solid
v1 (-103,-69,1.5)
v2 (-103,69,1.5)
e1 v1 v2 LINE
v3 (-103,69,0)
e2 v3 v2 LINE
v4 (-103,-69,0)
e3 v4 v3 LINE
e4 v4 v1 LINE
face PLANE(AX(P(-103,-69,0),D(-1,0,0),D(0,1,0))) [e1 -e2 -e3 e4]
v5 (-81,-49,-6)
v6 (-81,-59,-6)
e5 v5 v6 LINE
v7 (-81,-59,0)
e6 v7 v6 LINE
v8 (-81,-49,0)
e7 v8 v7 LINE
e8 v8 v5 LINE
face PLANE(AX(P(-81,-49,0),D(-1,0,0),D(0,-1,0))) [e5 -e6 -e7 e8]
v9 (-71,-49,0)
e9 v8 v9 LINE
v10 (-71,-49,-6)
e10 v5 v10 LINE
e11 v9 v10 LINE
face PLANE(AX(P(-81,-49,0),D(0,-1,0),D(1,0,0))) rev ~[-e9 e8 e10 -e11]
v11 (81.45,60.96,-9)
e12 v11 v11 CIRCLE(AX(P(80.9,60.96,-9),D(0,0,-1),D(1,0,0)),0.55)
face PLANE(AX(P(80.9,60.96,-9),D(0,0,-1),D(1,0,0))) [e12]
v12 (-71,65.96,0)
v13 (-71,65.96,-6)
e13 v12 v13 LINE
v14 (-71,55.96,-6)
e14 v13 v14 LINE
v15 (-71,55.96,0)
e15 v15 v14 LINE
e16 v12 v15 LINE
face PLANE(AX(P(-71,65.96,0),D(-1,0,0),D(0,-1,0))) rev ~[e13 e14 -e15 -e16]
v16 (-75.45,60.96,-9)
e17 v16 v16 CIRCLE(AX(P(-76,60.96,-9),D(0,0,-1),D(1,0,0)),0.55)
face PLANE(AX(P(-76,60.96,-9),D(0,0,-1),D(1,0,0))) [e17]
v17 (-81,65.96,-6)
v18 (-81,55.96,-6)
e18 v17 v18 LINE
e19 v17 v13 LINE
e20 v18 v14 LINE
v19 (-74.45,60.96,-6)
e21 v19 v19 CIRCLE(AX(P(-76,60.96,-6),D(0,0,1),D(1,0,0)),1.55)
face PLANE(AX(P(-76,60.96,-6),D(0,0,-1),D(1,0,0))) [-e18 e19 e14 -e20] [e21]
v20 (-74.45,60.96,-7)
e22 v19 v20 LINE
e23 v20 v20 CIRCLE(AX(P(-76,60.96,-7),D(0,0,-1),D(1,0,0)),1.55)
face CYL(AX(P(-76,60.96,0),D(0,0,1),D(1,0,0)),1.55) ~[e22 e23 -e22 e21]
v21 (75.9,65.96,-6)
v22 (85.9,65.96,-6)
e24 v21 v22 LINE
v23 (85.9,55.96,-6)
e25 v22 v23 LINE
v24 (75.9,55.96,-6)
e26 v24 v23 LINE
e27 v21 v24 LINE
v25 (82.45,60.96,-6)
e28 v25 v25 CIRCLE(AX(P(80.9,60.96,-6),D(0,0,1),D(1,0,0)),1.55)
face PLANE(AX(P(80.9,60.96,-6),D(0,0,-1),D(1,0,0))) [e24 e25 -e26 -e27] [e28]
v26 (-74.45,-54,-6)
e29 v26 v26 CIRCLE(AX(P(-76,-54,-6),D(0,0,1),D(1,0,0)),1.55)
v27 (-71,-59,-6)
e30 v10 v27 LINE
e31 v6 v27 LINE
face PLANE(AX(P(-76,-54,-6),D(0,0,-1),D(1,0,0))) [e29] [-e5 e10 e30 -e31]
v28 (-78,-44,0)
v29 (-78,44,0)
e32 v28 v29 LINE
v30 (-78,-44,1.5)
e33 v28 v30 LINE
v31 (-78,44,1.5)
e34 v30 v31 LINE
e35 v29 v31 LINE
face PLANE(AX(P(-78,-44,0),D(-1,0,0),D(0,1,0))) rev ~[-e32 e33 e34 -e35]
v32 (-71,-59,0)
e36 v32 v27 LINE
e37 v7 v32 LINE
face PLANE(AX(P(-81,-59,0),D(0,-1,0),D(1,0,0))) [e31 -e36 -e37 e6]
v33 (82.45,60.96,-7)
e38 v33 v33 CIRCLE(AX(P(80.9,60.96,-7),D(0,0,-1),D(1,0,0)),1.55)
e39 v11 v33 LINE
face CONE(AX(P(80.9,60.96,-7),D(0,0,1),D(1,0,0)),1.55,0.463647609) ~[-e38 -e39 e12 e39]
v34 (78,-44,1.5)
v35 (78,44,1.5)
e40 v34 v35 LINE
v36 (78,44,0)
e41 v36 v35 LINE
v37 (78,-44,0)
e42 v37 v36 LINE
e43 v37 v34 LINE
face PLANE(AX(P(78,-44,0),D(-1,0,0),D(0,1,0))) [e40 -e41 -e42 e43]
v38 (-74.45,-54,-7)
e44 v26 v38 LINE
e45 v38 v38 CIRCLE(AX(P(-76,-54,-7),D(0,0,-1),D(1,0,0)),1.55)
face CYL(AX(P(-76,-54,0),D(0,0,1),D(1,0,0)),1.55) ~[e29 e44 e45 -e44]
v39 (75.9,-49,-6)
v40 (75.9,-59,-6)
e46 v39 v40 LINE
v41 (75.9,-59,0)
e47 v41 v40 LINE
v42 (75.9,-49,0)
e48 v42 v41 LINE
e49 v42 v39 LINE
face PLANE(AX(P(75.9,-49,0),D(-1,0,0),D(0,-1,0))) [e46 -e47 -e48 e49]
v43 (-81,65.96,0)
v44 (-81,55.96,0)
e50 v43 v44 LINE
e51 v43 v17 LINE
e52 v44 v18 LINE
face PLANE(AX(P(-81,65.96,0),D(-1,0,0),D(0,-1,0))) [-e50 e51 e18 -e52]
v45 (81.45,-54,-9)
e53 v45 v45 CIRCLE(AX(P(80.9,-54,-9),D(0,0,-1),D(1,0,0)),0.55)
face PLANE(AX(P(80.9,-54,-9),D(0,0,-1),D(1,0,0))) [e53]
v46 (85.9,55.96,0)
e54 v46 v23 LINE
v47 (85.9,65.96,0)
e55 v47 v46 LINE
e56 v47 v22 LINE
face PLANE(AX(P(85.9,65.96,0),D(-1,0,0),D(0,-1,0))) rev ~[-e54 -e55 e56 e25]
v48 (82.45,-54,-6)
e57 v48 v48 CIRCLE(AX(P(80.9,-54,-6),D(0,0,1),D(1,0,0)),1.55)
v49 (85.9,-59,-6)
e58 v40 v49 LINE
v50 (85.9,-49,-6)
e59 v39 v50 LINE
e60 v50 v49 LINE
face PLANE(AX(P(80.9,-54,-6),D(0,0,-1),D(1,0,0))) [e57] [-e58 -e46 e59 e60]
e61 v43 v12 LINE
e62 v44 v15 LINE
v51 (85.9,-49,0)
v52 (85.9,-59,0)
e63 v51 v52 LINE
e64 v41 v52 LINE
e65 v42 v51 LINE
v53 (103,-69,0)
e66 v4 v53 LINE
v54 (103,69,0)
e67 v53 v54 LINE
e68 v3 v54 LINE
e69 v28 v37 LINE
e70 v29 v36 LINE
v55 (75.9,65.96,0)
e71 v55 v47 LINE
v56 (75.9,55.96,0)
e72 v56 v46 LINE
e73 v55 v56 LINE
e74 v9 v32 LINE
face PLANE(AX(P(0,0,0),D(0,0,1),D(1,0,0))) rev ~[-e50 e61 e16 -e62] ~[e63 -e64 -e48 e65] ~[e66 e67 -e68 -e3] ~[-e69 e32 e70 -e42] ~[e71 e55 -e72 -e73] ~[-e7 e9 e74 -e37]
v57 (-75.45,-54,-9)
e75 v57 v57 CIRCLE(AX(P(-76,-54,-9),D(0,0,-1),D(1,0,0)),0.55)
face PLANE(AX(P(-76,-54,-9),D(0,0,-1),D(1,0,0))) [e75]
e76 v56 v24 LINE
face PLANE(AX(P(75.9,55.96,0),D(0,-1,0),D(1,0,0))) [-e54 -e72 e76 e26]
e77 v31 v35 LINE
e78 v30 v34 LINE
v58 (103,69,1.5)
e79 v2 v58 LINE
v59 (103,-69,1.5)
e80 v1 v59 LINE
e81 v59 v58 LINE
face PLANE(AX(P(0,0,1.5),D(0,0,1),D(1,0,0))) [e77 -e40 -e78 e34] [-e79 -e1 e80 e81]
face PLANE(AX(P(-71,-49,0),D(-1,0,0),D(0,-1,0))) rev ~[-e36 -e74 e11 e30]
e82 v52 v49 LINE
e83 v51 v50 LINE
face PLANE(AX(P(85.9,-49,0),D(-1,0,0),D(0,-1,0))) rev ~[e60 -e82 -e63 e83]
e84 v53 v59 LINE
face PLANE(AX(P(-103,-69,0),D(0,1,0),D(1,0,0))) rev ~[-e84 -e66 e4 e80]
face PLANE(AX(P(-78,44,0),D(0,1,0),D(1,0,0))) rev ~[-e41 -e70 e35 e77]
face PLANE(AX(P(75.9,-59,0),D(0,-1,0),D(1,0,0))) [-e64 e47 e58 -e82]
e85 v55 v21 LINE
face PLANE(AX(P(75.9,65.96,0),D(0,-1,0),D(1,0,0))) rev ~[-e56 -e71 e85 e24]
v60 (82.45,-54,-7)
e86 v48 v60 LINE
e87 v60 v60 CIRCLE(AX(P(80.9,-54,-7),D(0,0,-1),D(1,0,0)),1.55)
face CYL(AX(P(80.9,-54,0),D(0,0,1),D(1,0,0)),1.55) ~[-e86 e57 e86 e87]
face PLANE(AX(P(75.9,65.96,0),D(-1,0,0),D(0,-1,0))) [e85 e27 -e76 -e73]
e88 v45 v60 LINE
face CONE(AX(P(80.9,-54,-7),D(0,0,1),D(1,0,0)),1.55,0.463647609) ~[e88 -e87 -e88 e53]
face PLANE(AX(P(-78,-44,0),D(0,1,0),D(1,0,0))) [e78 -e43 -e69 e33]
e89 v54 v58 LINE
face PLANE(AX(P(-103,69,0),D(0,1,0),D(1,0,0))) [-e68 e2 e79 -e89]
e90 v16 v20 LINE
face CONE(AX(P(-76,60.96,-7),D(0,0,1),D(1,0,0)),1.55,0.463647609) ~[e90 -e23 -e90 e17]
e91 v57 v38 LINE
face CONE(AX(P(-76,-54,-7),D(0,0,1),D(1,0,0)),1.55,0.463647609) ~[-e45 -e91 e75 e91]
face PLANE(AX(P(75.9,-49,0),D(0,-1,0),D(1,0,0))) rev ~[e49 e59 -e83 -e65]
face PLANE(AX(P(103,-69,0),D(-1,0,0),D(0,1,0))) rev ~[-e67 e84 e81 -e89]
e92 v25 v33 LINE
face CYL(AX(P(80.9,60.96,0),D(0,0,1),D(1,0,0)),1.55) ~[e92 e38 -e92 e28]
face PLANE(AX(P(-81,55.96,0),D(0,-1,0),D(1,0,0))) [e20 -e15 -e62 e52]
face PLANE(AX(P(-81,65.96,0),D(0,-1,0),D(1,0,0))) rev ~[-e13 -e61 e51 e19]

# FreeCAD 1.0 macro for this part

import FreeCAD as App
import Part
import Sketcher


def edges_at(feature, points):
    """Names of the edges that pass closest to the given points."""
    edges = feature.Shape.Edges
    near = lambda p: min(range(len(edges)), key=lambda i: edges[i].distToShape(Part.Vertex(*p))[0])
    return sorted({f"Edge{near(p) + 1}" for p in points})


def add_polygon(sketch, points):
    """Adds a closed chain of lines whose ends are joined by coincident constraints."""
    first, n = sketch.GeometryCount, len(points)
    for a, b in zip(points, points[1:] + points[:1]):
        sketch.addGeometry(Part.LineSegment(App.Vector(*a, 0), App.Vector(*b, 0)), False)
    for i in range(n):
        sketch.addConstraint(Sketcher.Constraint("Coincident", first + i, 2, first + (i + 1) % n, 1))

doc = App.newDocument("Part")
body = doc.addObject("PartDesign::Body", "Body")

sketch1 = body.newObject("Sketcher::SketchObject", "Sketch")
sketch1.AttachmentSupport = (doc.getObject("XY_Plane"), [""])
sketch1.MapMode = "FlatFace"
add_polygon(sketch1, [(-103, 69), (-103, -69), (103, -69), (103, 69)])
add_polygon(sketch1, [(78, -44), (-78, -44), (-78, 44), (78, 44)])
sketch1.addConstraint([
    Sketcher.Constraint("Vertical", 0),
    Sketcher.Constraint("Horizontal", 1),
    Sketcher.Constraint("Vertical", 2),
    Sketcher.Constraint("Horizontal", 3),
    Sketcher.Constraint("Horizontal", 4),
    Sketcher.Constraint("Vertical", 5),
    Sketcher.Constraint("Horizontal", 6),
    Sketcher.Constraint("Vertical", 7),
    Sketcher.Constraint("Symmetric", 0, 2, 2, 2, -1, 1),
    Sketcher.Constraint("Symmetric", 4, 2, 6, 2, -1, 1),
    Sketcher.Constraint("DistanceX", 1, 1, 1, 2, 206.0),
    Sketcher.Constraint("DistanceX", 4, 2, 4, 1, 156.0),
    Sketcher.Constraint("DistanceY", 0, 2, 0, 1, 138.0),
    Sketcher.Constraint("DistanceY", 5, 1, 5, 2, 88.0),
])
pad1 = body.newObject("PartDesign::Pad", "Pad")
pad1.Profile = sketch1
pad1.Length = 1.5

sketch2 = body.newObject("Sketcher::SketchObject", "Sketch001")
sketch2.AttachmentSupport = (doc.getObject("XY_Plane"), [""])
sketch2.MapMode = "FlatFace"
add_polygon(sketch2, [(-81, -59), (-81, -49), (-71, -49), (-71, -59)])
add_polygon(sketch2, [(76, -59), (76, -49), (86, -49), (86, -59)])
add_polygon(sketch2, [(76, 56), (76, 66), (86, 66), (86, 56)])
add_polygon(sketch2, [(-81, 56), (-81, 66), (-71, 66), (-71, 56)])
sketch2.addConstraint([
    Sketcher.Constraint("Vertical", 0),
    Sketcher.Constraint("Horizontal", 1),
    Sketcher.Constraint("Vertical", 2),
    Sketcher.Constraint("Horizontal", 3),
    Sketcher.Constraint("Vertical", 4),
    Sketcher.Constraint("Horizontal", 5),
    Sketcher.Constraint("Vertical", 6),
    Sketcher.Constraint("Horizontal", 7),
    Sketcher.Constraint("Vertical", 8),
    Sketcher.Constraint("Horizontal", 9),
    Sketcher.Constraint("Vertical", 10),
    Sketcher.Constraint("Horizontal", 11),
    Sketcher.Constraint("Vertical", 12),
    Sketcher.Constraint("Horizontal", 13),
    Sketcher.Constraint("Vertical", 14),
    Sketcher.Constraint("Horizontal", 15),
    Sketcher.Constraint("Horizontal", 1, 2, 4, 2),
    Sketcher.Constraint("Horizontal", 3, 2, 6, 2),
    Sketcher.Constraint("Horizontal", 9, 2, 12, 2),
    Sketcher.Constraint("Horizontal", 11, 2, 14, 2),
    Sketcher.Constraint("Vertical", 7, 2, 8, 2),
    Sketcher.Constraint("Vertical", 6, 2, 9, 2),
    Sketcher.Constraint("Vertical", 3, 2, 12, 2),
    Sketcher.Constraint("Vertical", 2, 2, 13, 2),
    Sketcher.Constraint("Equal", 3, 5),
    Sketcher.Constraint("Equal", 15, 0),
    Sketcher.Constraint("Equal", 6, 8),
    Sketcher.Constraint("DistanceX", 1, 1, 1, 2, 10.0),
    Sketcher.Constraint("DistanceX", 0, 2, -1, 1, 81.0),
    Sketcher.Constraint("DistanceY", 0, 2, -1, 1, 49.0),
    Sketcher.Constraint("DistanceX", -1, 1, 4, 2, 75.9),
    Sketcher.Constraint("DistanceY", -1, 1, 8, 2, 65.96),
])
pad2 = body.newObject("PartDesign::Pad", "Pad001")
pad2.Profile = sketch2
pad2.Length = 6
pad2.Reversed = True

sketch3 = body.newObject("Sketcher::SketchObject", "Sketch002")
sketch3.AttachmentSupport = (doc.getObject("XY_Plane"), [""])
sketch3.MapMode = "FlatFace"
sketch3.addGeometry([
    Part.Circle(App.Vector(-76, -54, 0), App.Vector(0, 0, 1), 1.6),
    Part.Circle(App.Vector(-76, 61, 0), App.Vector(0, 0, 1), 1.6),
    Part.Circle(App.Vector(80.9, 61, 0), App.Vector(0, 0, 1), 1.6),
    Part.Circle(App.Vector(80.9, -54, 0), App.Vector(0, 0, 1), 1.6),
], False)
sketch3.addConstraint([
    Sketcher.Constraint("Equal", 0, 1),
    Sketcher.Constraint("Equal", 1, 2),
    Sketcher.Constraint("Equal", 2, 3),
    Sketcher.Constraint("Horizontal", 1, 3, 2, 3),
    Sketcher.Constraint("Horizontal", 0, 3, 3, 3),
    Sketcher.Constraint("Vertical", 0, 3, 1, 3),
    Sketcher.Constraint("Vertical", 2, 3, 3, 3),
    Sketcher.Constraint("Diameter", 0, 3.1),
    Sketcher.Constraint("DistanceX", 0, 3, -1, 1, 76.0),
    Sketcher.Constraint("DistanceY", 0, 3, -1, 1, 54.0),
    Sketcher.Constraint("DistanceX", -1, 1, 2, 3, 80.9),
    Sketcher.Constraint("DistanceY", -1, 1, 1, 3, 60.96),
])
pad3 = body.newObject("PartDesign::Pad", "Pad002")
pad3.Profile = sketch3
pad3.Length = 9
pad3.Reversed = True
doc.recompute()

chamfer = body.newObject("PartDesign::Chamfer", "Chamfer")
chamfer.Base = (pad3, edges_at(pad3, [(-77.55, -54, -9)]))
chamfer.ChamferType = "Two distances"
chamfer.Size = 1
chamfer.Size2 = 2
chamfer.FlipDirection = True
doc.recompute()

chamfer2 = body.newObject("PartDesign::Chamfer", "Chamfer001")
chamfer2.Base = (chamfer, edges_at(chamfer, [(-77.55, 60.96, -9)]))
chamfer2.ChamferType = "Two distances"
chamfer2.Size = 1
chamfer2.Size2 = 2
chamfer2.FlipDirection = True
doc.recompute()

chamfer3 = body.newObject("PartDesign::Chamfer", "Chamfer002")
chamfer3.Base = (chamfer2, edges_at(chamfer2, [(79.35, -54, -9)]))
chamfer3.ChamferType = "Two distances"
chamfer3.Size = 1
chamfer3.Size2 = 2
chamfer3.FlipDirection = True
doc.recompute()

chamfer4 = body.newObject("PartDesign::Chamfer", "Chamfer003")
chamfer4.Base = (chamfer3, edges_at(chamfer3, [(79.35, 60.96, -9)]))
chamfer4.ChamferType = "Two distances"
chamfer4.Size = 1
chamfer4.Size2 = 2
chamfer4.FlipDirection = True

doc.recompute()
